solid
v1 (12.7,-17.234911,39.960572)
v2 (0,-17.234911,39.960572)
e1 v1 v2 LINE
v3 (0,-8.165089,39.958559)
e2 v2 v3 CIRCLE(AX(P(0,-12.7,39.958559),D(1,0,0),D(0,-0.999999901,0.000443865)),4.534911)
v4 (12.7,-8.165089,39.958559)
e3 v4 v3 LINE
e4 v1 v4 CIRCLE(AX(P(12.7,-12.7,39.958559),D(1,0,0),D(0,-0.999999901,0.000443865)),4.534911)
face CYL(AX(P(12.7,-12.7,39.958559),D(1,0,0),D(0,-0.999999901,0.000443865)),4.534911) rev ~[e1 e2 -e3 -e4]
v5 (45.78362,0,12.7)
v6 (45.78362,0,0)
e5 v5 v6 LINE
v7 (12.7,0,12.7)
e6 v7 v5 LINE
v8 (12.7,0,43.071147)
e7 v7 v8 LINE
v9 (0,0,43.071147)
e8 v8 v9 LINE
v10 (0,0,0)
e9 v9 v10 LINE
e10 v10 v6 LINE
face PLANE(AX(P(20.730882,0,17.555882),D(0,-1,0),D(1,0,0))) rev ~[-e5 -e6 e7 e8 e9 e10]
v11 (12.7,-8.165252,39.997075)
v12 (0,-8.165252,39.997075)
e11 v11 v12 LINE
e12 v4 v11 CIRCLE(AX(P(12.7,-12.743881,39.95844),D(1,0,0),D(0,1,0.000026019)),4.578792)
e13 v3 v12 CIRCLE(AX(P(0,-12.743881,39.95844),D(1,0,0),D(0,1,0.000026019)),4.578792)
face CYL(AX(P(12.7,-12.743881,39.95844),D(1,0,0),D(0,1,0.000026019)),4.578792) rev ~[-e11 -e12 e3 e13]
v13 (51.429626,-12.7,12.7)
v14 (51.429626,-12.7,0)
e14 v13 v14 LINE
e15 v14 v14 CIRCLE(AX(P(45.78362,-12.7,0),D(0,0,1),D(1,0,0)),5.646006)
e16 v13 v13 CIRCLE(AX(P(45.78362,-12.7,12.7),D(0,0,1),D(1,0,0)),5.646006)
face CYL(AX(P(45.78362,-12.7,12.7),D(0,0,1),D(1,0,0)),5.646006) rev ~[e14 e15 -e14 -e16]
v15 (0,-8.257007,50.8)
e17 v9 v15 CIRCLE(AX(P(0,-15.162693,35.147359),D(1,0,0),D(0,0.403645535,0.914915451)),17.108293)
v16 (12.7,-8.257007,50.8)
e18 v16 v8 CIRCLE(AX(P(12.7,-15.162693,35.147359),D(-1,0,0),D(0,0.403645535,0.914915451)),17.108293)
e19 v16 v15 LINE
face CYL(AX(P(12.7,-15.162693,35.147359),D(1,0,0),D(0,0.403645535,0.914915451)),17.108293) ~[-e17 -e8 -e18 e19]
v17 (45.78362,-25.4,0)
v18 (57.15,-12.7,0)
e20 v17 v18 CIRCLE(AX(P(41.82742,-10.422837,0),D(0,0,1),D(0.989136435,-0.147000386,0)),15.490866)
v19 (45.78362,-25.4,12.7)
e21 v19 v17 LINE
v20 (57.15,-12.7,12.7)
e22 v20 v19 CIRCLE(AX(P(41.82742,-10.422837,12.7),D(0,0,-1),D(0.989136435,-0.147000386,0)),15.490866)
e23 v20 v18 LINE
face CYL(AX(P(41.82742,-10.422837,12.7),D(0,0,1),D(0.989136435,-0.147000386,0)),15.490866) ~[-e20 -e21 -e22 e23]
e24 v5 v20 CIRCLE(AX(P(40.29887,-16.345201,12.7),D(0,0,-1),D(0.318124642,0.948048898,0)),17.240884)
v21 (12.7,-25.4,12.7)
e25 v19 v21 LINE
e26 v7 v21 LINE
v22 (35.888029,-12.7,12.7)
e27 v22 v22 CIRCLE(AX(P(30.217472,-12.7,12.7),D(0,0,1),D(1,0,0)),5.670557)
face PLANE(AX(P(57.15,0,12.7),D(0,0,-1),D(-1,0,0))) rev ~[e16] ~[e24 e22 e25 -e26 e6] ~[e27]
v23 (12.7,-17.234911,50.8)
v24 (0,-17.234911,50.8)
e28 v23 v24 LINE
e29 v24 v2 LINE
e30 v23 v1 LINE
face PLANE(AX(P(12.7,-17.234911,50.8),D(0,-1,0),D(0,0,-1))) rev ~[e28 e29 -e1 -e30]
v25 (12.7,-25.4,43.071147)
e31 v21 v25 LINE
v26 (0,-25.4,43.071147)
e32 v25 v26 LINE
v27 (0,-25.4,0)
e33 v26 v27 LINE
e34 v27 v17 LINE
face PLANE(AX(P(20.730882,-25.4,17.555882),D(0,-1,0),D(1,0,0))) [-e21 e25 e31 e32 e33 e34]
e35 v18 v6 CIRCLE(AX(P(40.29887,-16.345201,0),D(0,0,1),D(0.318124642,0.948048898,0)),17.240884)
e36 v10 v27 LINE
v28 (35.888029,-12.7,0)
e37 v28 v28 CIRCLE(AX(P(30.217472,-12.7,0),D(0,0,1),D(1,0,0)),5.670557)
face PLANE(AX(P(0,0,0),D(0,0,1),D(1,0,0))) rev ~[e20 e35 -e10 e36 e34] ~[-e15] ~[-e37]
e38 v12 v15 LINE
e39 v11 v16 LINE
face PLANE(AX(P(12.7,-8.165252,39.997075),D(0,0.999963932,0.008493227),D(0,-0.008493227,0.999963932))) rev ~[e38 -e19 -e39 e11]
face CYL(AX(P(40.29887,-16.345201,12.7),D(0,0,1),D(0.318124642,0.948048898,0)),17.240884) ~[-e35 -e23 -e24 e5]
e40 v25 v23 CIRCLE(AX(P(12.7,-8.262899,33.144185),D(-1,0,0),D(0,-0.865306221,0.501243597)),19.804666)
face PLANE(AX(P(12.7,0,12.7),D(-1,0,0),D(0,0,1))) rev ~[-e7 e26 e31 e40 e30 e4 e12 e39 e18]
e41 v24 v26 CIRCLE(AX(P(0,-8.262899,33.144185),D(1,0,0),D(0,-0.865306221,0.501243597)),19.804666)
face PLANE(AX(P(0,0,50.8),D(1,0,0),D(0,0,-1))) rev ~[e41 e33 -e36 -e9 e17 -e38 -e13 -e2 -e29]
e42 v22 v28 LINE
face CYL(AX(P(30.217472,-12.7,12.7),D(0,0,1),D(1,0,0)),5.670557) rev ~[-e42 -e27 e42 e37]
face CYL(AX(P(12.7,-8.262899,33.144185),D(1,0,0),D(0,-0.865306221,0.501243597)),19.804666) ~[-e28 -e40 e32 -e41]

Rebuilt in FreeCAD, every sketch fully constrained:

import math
import FreeCAD as App
import Part
import Sketcher
Q = App.Units.Quantity

doc = App.newDocument("Part")
body = doc.addObject("PartDesign::Body", "Body")

# Sketch on XZ plane
sketch1 = body.newObject("Sketcher::SketchObject", "Sketch")
sketch1.AttachmentSupport = (doc.getObject("XZ_Plane"), [""])
sketch1.MapMode = "FlatFace"
sketch1.addGeometry(Part.LineSegment(App.Vector(0, 50.8, 0), App.Vector(0, 0, 0)), False)
sketch1.addGeometry(Part.LineSegment(App.Vector(0, 0, 0), App.Vector(57.15, 0, 0)), False)
sketch1.addGeometry(Part.LineSegment(App.Vector(57.15, 0, 0), App.Vector(57.15, 12.7, 0)), False)
sketch1.addGeometry(Part.LineSegment(App.Vector(57.15, 12.7, 0), App.Vector(12.7, 12.7, 0)), False)
sketch1.addGeometry(Part.LineSegment(App.Vector(12.7, 12.7, 0), App.Vector(12.7, 50.8, 0)), False)
sketch1.addGeometry(Part.LineSegment(App.Vector(12.7, 50.8, 0), App.Vector(0, 50.8, 0)), False)
sketch1.addConstraint(Sketcher.Constraint("Coincident", 0, 2, 1, 1))
sketch1.addConstraint(Sketcher.Constraint("Coincident", 1, 2, 2, 1))
sketch1.addConstraint(Sketcher.Constraint("Coincident", 2, 2, 3, 1))
sketch1.addConstraint(Sketcher.Constraint("Coincident", 3, 2, 4, 1))
sketch1.addConstraint(Sketcher.Constraint("Coincident", 4, 2, 5, 1))
sketch1.addConstraint(Sketcher.Constraint("Coincident", 5, 2, 0, 1))
sketch1.addConstraint(Sketcher.Constraint("Vertical", 0))
sketch1.addConstraint(Sketcher.Constraint("Horizontal", 1))
sketch1.addConstraint(Sketcher.Constraint("Vertical", 2))
sketch1.addConstraint(Sketcher.Constraint("Horizontal", 3))
sketch1.addConstraint(Sketcher.Constraint("Vertical", 4))
sketch1.addConstraint(Sketcher.Constraint("Horizontal", 5))
sketch1.addConstraint(Sketcher.Constraint("Coincident", 0, 2, -1, 1))
sketch1.addConstraint(Sketcher.Constraint("Equal", 5, 2))
sketch1.addConstraint(Sketcher.Constraint("DistanceY", 0, 2, 0, 1, Q("2 in")))
sketch1.addConstraint(Sketcher.Constraint("DistanceX", 5, 2, 5, 1, Q("0.5 in")))
sketch1.addConstraint(Sketcher.Constraint("DistanceX", 1, 1, 1, 2, Q("2.25 in")))
pad1 = body.newObject("PartDesign::Pad", "Pad")
pad1.Profile = sketch1
pad1.Length = Q("1 in")

# Sketch on YZ plane
sketch2 = body.newObject("Sketcher::SketchObject", "Sketch001")
sketch2.AttachmentSupport = (doc.getObject("YZ_Plane"), [""])
sketch2.MapMode = "FlatFace"
sketch2.AttachmentOffset = App.Placement(App.Vector(0, 0, 0.5 * 25.4), App.Rotation())
sketch2.addGeometry(Part.ArcOfCircle(Part.Circle(App.Vector(-12.7, 39.958559, 0), App.Vector(0, 0, 1), 4.534911), math.radians(179.974568), math.radians(359.999999)), False)
sketch2.addGeometry(Part.ArcOfCircle(Part.Circle(App.Vector(-12.743881, 39.95844, 0), App.Vector(0, 0, 1), 4.578792), math.radians(0.001491), math.radians(0.483459)), False)
sketch2.addGeometry(Part.LineSegment(App.Vector(-8.165252, 39.997075, 0), App.Vector(-8.257007, 50.8, 0)), False)
sketch2.addGeometry(Part.LineSegment(App.Vector(-8.257007, 50.8, 0), App.Vector(-17.234911, 50.8, 0)), False)
sketch2.addGeometry(Part.LineSegment(App.Vector(-17.234911, 50.8, 0), App.Vector(-17.234911, 39.960572, 0)), False)
sketch2.addGeometry(Part.ArcOfCircle(Part.Circle(App.Vector(-8.262899, 33.144185, 0), App.Vector(0, 0, 1), 19.804666), math.radians(116.937941), math.radians(149.91769)), False)
sketch2.addGeometry(Part.LineSegment(App.Vector(-17.234911, 50.8, 0), App.Vector(-25.4, 50.8, 0)), False)
sketch2.addGeometry(Part.LineSegment(App.Vector(-25.4, 50.8, 0), App.Vector(-25.4, 43.071147, 0)), False)
sketch2.addGeometry(Part.LineSegment(App.Vector(0, 50.8, 0), App.Vector(-8.257007, 50.8, 0)), False)
sketch2.addGeometry(Part.ArcOfCircle(Part.Circle(App.Vector(-15.162693, 35.147359, 0), App.Vector(0, 0, 1), 17.108293), math.radians(27.590871), math.radians(66.193723)), False)
sketch2.addGeometry(Part.LineSegment(App.Vector(0, 43.071147, 0), App.Vector(0, 50.8, 0)), False)
sketch2.addConstraint(Sketcher.Constraint("Coincident", 0, 2, 1, 1))
sketch2.addConstraint(Sketcher.Constraint("Coincident", 1, 2, 2, 1))
sketch2.addConstraint(Sketcher.Constraint("Coincident", 2, 2, 3, 1))
sketch2.addConstraint(Sketcher.Constraint("Coincident", 3, 2, 4, 1))
sketch2.addConstraint(Sketcher.Constraint("Coincident", 4, 2, 0, 1))
sketch2.addConstraint(Sketcher.Constraint("Coincident", 5, 1, 6, 1))
sketch2.addConstraint(Sketcher.Constraint("Coincident", 6, 2, 7, 1))
sketch2.addConstraint(Sketcher.Constraint("Coincident", 7, 2, 5, 2))
sketch2.addConstraint(Sketcher.Constraint("Coincident", 8, 2, 9, 2))
sketch2.addConstraint(Sketcher.Constraint("Coincident", 9, 1, 10, 1))
sketch2.addConstraint(Sketcher.Constraint("Coincident", 10, 2, 8, 1))
sketch2.addConstraint(Sketcher.Constraint("Horizontal", 3))
sketch2.addConstraint(Sketcher.Constraint("Vertical", 4))
sketch2.addConstraint(Sketcher.Constraint("Horizontal", 6))
sketch2.addConstraint(Sketcher.Constraint("Vertical", 7))
sketch2.addConstraint(Sketcher.Constraint("Horizontal", 8))
sketch2.addConstraint(Sketcher.Constraint("Vertical", 10))
sketch2.addConstraint(Sketcher.Constraint("Coincident", 5, 1, 3, 2))
sketch2.addConstraint(Sketcher.Constraint("Coincident", 8, 2, 2, 2))
sketch2.addConstraint(Sketcher.Constraint("PointOnObject", 9, 1, -2))
sketch2.addConstraint(Sketcher.Constraint("Horizontal", 7, 2, 9, 1))
sketch2.addConstraint(Sketcher.Constraint("DistanceY", -1, 1, 2, 2, Q("2 in")))
sketch2.addConstraint(Sketcher.Constraint("DistanceX", 6, 2, -1, 1, Q("1 in")))
sketch2.addConstraint(Sketcher.Constraint("DistanceX", 0, 3, -1, 1, Q("0.5 in")))
sketch2.addConstraint(Sketcher.Constraint("Radius", 0, 4.534911))
sketch2.addConstraint(Sketcher.Constraint("Radius", 1, 4.578792))
sketch2.addConstraint(Sketcher.Constraint("Radius", 5, 19.804666))
sketch2.addConstraint(Sketcher.Constraint("Radius", 9, 17.108293))
sketch2.addConstraint(Sketcher.Constraint("DistanceX", 5, 3, -1, 1, 8.262899))
sketch2.addConstraint(Sketcher.Constraint("DistanceY", 9, 3, 0, 3, 4.8112))
sketch2.addConstraint(Sketcher.Constraint("DistanceY", 9, 3, 0, 2, 4.8112))
sketch2.addConstraint(Sketcher.Constraint("DistanceX", 3, 2, 3, 1, 8.977904))
sketch2.addConstraint(Sketcher.Constraint("DistanceY", 4, 2, 4, 1, 10.839428))
sketch2.addConstraint(Sketcher.Constraint("DistanceY", -1, 1, 1, 3, 39.95844))
sketch2.addConstraint(Sketcher.Constraint("DistanceX", 1, 2, -1, 1, 8.165252))
pocket1 = body.newObject("PartDesign::Pocket", "Pocket")
pocket1.Profile = sketch2
pocket1.Length = Q("1 in")

# Sketch on XY plane
sketch3 = body.newObject("Sketcher::SketchObject", "Sketch002")
sketch3.AttachmentSupport = (doc.getObject("XY_Plane"), [""])
sketch3.MapMode = "FlatFace"
sketch3.AttachmentOffset = App.Placement(App.Vector(0, 0, 0.5 * 25.4), App.Rotation())
sketch3.addGeometry(Part.ArcOfCircle(Part.Circle(App.Vector(39.236576, -17.816432, 0), App.Vector(0, 0, 1), 18.629778), math.radians(15.9404), math.radians(73.007224)), False)
sketch3.addGeometry(Part.LineSegment(App.Vector(57.15, -12.7, 0), App.Vector(57.15, 0, 0)), False)
sketch3.addGeometry(Part.LineSegment(App.Vector(57.15, 0, 0), App.Vector(44.68115, 0, 0)), False)
sketch3.addGeometry(Part.LineSegment(App.Vector(57.15, -25.4, 0), App.Vector(57.15, -12.7, 0)), False)
sketch3.addGeometry(Part.ArcOfCircle(Part.Circle(App.Vector(39.216203, -7.563566, 0), App.Vector(0, 0, 1), 18.654866), math.radians(-72.965337), math.radians(-15.982287)), False)
sketch3.addGeometry(Part.LineSegment(App.Vector(44.68115, -25.4, 0), App.Vector(57.15, -25.4, 0)), False)
sketch3.addConstraint(Sketcher.Constraint("Coincident", 0, 1, 1, 1))
sketch3.addConstraint(Sketcher.Constraint("Coincident", 1, 2, 2, 1))
sketch3.addConstraint(Sketcher.Constraint("Coincident", 2, 2, 0, 2))
sketch3.addConstraint(Sketcher.Constraint("Coincident", 3, 2, 4, 2))
sketch3.addConstraint(Sketcher.Constraint("Coincident", 4, 1, 5, 1))
sketch3.addConstraint(Sketcher.Constraint("Coincident", 5, 2, 3, 1))
sketch3.addConstraint(Sketcher.Constraint("Vertical", 1))
sketch3.addConstraint(Sketcher.Constraint("Horizontal", 2))
sketch3.addConstraint(Sketcher.Constraint("Vertical", 3))
sketch3.addConstraint(Sketcher.Constraint("Horizontal", 5))
sketch3.addConstraint(Sketcher.Constraint("Coincident", 3, 2, 0, 1))
sketch3.addConstraint(Sketcher.Constraint("PointOnObject", 1, 2, -1))
sketch3.addConstraint(Sketcher.Constraint("Vertical", 2, 2, 4, 1))
sketch3.addConstraint(Sketcher.Constraint("Equal", 1, 3))
sketch3.addConstraint(Sketcher.Constraint("DistanceY", 1, 1, 1, 2, Q("0.5 in")))
sketch3.addConstraint(Sketcher.Constraint("DistanceX", -1, 1, 0, 1, Q("2.25 in")))
sketch3.addConstraint(Sketcher.Constraint("Radius", 0, 18.629778))
sketch3.addConstraint(Sketcher.Constraint("Radius", 4, 18.654866))
sketch3.addConstraint(Sketcher.Constraint("DistanceX", 2, 2, 2, 1, 12.46885))
pocket2 = body.newObject("PartDesign::Pocket", "Pocket001")
pocket2.Profile = sketch3
pocket2.Length = Q("1 in")
pocket2.Reversed = True

# Sketch on XY plane
sketch4 = body.newObject("Sketcher::SketchObject", "Sketch003")
sketch4.AttachmentSupport = (doc.getObject("XY_Plane"), [""])
sketch4.MapMode = "FlatFace"
sketch4.AttachmentOffset = App.Placement(App.Vector(0, 0, 0.5 * 25.4), App.Rotation())
sketch4.addGeometry(Part.Circle(App.Vector(45.78362, -12.7, 0), App.Vector(0, 0, 1), 5.646006), False)
sketch4.addGeometry(Part.Circle(App.Vector(30.217472, -12.7, 0), App.Vector(0, 0, 1), 5.670557), False)
sketch4.addGeometry(Part.ArcOfCircle(Part.Circle(App.Vector(40.29887, -16.345201, 0), App.Vector(0, 0, 1), 17.240884), math.radians(12.206033), math.radians(71.450451)), False)
sketch4.addGeometry(Part.LineSegment(App.Vector(57.15, -12.7, 0), App.Vector(57.15, 0, 0)), False)
sketch4.addGeometry(Part.LineSegment(App.Vector(57.15, 0, 0), App.Vector(45.78362, 0, 0)), False)
sketch4.addGeometry(Part.LineSegment(App.Vector(57.15, -25.4, 0), App.Vector(57.15, -12.7, 0)), False)
sketch4.addGeometry(Part.ArcOfCircle(Part.Circle(App.Vector(41.82742, -10.422837, 0), App.Vector(0, 0, 1), 15.490866), math.radians(-75.20335), math.radians(-8.453134)), False)
sketch4.addGeometry(Part.LineSegment(App.Vector(45.78362, -25.4, 0), App.Vector(57.15, -25.4, 0)), False)
sketch4.addConstraint(Sketcher.Constraint("Coincident", 2, 1, 3, 1))
sketch4.addConstraint(Sketcher.Constraint("Coincident", 3, 2, 4, 1))
sketch4.addConstraint(Sketcher.Constraint("Coincident", 4, 2, 2, 2))
sketch4.addConstraint(Sketcher.Constraint("Coincident", 5, 2, 6, 2))
sketch4.addConstraint(Sketcher.Constraint("Coincident", 6, 1, 7, 1))
sketch4.addConstraint(Sketcher.Constraint("Coincident", 7, 2, 5, 1))
sketch4.addConstraint(Sketcher.Constraint("Vertical", 3))
sketch4.addConstraint(Sketcher.Constraint("Horizontal", 4))
sketch4.addConstraint(Sketcher.Constraint("Vertical", 5))
sketch4.addConstraint(Sketcher.Constraint("Horizontal", 7))
sketch4.addConstraint(Sketcher.Constraint("Coincident", 5, 2, 2, 1))
sketch4.addConstraint(Sketcher.Constraint("PointOnObject", 3, 2, -1))
sketch4.addConstraint(Sketcher.Constraint("Horizontal", 0, 3, 1, 3))
sketch4.addConstraint(Sketcher.Constraint("Horizontal", 1, 3, 2, 1))
sketch4.addConstraint(Sketcher.Constraint("Vertical", 0, 3, 4, 2))
sketch4.addConstraint(Sketcher.Constraint("Vertical", 4, 2, 6, 1))
sketch4.addConstraint(Sketcher.Constraint("Equal", 3, 5))
sketch4.addConstraint(Sketcher.Constraint("DistanceY", 3, 1, 3, 2, Q("0.5 in")))
sketch4.addConstraint(Sketcher.Constraint("DistanceX", -1, 1, 2, 1, Q("2.25 in")))
sketch4.addConstraint(Sketcher.Constraint("Diameter", 0, 11.292012))
sketch4.addConstraint(Sketcher.Constraint("Diameter", 1, 11.341114))
sketch4.addConstraint(Sketcher.Constraint("Radius", 2, 17.240884))
sketch4.addConstraint(Sketcher.Constraint("Radius", 6, 15.490866))
sketch4.addConstraint(Sketcher.Constraint("DistanceX", 4, 2, 4, 1, 11.36638))
sketch4.addConstraint(Sketcher.Constraint("DistanceX", 1, 3, 2, 3, 10.081398))
pocket3 = body.newObject("PartDesign::Pocket", "Pocket002")
pocket3.Profile = sketch4
pocket3.Length = Q("1 in")

doc.recompute()
